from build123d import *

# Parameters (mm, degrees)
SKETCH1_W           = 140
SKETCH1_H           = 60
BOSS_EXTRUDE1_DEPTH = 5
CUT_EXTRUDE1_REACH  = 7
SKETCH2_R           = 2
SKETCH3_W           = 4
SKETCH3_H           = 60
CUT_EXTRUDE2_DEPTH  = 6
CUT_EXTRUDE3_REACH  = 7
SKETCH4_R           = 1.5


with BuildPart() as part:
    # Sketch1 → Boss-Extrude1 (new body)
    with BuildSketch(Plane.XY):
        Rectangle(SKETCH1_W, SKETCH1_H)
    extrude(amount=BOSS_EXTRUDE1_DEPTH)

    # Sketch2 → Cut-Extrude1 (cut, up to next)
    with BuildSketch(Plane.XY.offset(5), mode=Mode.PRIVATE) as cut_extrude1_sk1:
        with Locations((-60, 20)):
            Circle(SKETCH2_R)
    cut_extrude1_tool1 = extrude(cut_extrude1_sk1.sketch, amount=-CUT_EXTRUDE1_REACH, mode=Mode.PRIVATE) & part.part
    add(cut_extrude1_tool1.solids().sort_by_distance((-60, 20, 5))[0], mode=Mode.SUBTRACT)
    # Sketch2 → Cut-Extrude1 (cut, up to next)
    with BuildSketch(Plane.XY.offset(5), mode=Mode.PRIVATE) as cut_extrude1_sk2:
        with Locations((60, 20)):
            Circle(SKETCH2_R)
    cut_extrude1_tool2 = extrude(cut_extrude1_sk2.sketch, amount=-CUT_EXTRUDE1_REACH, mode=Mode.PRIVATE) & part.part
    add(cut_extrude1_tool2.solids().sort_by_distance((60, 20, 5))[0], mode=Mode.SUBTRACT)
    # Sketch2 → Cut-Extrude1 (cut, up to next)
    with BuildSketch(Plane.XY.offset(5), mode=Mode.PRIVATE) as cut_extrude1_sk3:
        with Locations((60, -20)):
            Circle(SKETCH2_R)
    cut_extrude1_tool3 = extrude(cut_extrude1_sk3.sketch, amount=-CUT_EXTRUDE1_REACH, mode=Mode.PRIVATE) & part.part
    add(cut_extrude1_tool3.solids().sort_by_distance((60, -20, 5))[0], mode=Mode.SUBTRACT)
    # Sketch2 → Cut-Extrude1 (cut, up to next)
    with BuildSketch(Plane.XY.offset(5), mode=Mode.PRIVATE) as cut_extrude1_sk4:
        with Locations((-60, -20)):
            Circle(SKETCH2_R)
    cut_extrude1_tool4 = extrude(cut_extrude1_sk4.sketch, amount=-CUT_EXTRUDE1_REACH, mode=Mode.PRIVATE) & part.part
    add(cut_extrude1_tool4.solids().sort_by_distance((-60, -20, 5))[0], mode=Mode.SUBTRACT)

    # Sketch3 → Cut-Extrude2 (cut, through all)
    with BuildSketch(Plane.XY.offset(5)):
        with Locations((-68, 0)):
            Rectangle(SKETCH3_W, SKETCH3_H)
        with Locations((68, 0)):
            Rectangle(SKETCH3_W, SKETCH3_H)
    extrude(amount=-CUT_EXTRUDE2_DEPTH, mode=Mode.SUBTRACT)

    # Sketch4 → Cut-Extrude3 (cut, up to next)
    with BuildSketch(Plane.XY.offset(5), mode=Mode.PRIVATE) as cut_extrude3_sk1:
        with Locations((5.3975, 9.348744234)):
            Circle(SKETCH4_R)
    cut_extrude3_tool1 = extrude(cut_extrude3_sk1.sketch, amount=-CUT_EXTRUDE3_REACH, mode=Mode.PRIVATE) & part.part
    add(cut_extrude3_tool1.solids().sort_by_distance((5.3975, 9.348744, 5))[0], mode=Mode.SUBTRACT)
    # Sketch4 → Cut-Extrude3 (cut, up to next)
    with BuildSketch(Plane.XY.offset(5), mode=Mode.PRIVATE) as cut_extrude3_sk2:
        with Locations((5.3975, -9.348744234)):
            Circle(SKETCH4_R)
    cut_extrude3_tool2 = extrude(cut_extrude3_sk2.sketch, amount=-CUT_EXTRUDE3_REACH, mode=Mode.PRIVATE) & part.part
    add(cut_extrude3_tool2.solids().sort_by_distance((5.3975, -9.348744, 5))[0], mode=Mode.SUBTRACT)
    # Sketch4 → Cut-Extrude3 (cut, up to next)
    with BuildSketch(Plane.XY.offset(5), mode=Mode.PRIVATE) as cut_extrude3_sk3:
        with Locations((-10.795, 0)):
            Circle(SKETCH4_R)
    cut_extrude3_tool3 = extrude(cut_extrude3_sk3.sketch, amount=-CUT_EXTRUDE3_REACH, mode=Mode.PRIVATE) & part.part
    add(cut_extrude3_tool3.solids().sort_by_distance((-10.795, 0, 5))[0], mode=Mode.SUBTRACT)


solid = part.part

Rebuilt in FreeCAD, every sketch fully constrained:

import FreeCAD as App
import Part
import Sketcher

V = App.Vector

doc = App.newDocument("Part")
body = doc.addObject("PartDesign::Body", "Body")

# Sketch on XY plane
sketch1 = doc.addObject("Sketcher::SketchObject", "Sketch")
body.addObject(sketch1)
sketch1.AttachmentSupport = (doc.XY_Plane, [""])
sketch1.MapMode = "FlatFace"
sketch1.addGeometry([
    Part.LineSegment(V(-70, 30, 0), V(-70, -30, 0)),
    Part.LineSegment(V(-70, -30, 0), V(70, -30, 0)),
    Part.LineSegment(V(70, -30, 0), V(70, 30, 0)),
    Part.LineSegment(V(70, 30, 0), V(-70, 30, 0)),
], False)
sketch1.addConstraint([
    Sketcher.Constraint("Coincident", 0, 2, 1, 1),
    Sketcher.Constraint("Coincident", 1, 2, 2, 1),
    Sketcher.Constraint("Coincident", 2, 2, 3, 1),
    Sketcher.Constraint("Coincident", 3, 2, 0, 1),
    Sketcher.Constraint("Vertical", 0),
    Sketcher.Constraint("Horizontal", 1),
    Sketcher.Constraint("Vertical", 2),
    Sketcher.Constraint("Horizontal", 3),
    Sketcher.Constraint("Symmetric", 0, 2, 2, 2, -1, 1),
    Sketcher.Constraint("DistanceX", 1, 1, 1, 2, 140.0),
    Sketcher.Constraint("DistanceY", 0, 2, 0, 1, 60.0),
])
pad1 = doc.addObject("PartDesign::Pad", "Pad")
body.addObject(pad1)
pad1.Profile = sketch1
pad1.Length = 5

# Sketch on XY plane
sketch2 = doc.addObject("Sketcher::SketchObject", "Sketch001")
body.addObject(sketch2)
sketch2.AttachmentSupport = (doc.XY_Plane, [""])
sketch2.MapMode = "FlatFace"
sketch2.AttachmentOffset = App.Placement(V(0, 0, 5), App.Rotation())
sketch2.addGeometry(Part.Circle(V(-60, 20, 0), V(0, 0, 1), 2), False)
sketch2.addConstraint([
    Sketcher.Constraint("Diameter", 0, 4.0),
    Sketcher.Constraint("DistanceX", 0, 3, -1, 1, 60.0),
    Sketcher.Constraint("DistanceY", -1, 1, 0, 3, 20.0),
])
pocket1 = doc.addObject("PartDesign::Pocket", "Pocket")
body.addObject(pocket1)
pocket1.Profile = sketch2
pocket1.Type = "UpToFirst"

# Sketch on XY plane
sketch3 = doc.addObject("Sketcher::SketchObject", "Sketch002")
body.addObject(sketch3)
sketch3.AttachmentSupport = (doc.XY_Plane, [""])
sketch3.MapMode = "FlatFace"
sketch3.AttachmentOffset = App.Placement(V(0, 0, 5), App.Rotation())
sketch3.addGeometry(Part.Circle(V(60, 20, 0), V(0, 0, 1), 2), False)
sketch3.addConstraint([
    Sketcher.Constraint("Diameter", 0, 4.0),
    Sketcher.Constraint("DistanceX", -1, 1, 0, 3, 60.0),
    Sketcher.Constraint("DistanceY", -1, 1, 0, 3, 20.0),
])
pocket2 = doc.addObject("PartDesign::Pocket", "Pocket001")
body.addObject(pocket2)
pocket2.Profile = sketch3
pocket2.Type = "UpToFirst"

# Sketch on XY plane
sketch4 = doc.addObject("Sketcher::SketchObject", "Sketch003")
body.addObject(sketch4)
sketch4.AttachmentSupport = (doc.XY_Plane, [""])
sketch4.MapMode = "FlatFace"
sketch4.AttachmentOffset = App.Placement(V(0, 0, 5), App.Rotation())
sketch4.addGeometry(Part.Circle(V(60, -20, 0), V(0, 0, 1), 2), False)
sketch4.addConstraint([
    Sketcher.Constraint("Diameter", 0, 4.0),
    Sketcher.Constraint("DistanceX", -1, 1, 0, 3, 60.0),
    Sketcher.Constraint("DistanceY", 0, 3, -1, 1, 20.0),
])
pocket3 = doc.addObject("PartDesign::Pocket", "Pocket002")
body.addObject(pocket3)
pocket3.Profile = sketch4
pocket3.Type = "UpToFirst"

# Sketch on XY plane
sketch5 = doc.addObject("Sketcher::SketchObject", "Sketch004")
body.addObject(sketch5)
sketch5.AttachmentSupport = (doc.XY_Plane, [""])
sketch5.MapMode = "FlatFace"
sketch5.AttachmentOffset = App.Placement(V(0, 0, 5), App.Rotation())
sketch5.addGeometry(Part.Circle(V(-60, -20, 0), V(0, 0, 1), 2), False)
sketch5.addConstraint([
    Sketcher.Constraint("Diameter", 0, 4.0),
    Sketcher.Constraint("DistanceX", 0, 3, -1, 1, 60.0),
    Sketcher.Constraint("DistanceY", 0, 3, -1, 1, 20.0),
])
pocket4 = doc.addObject("PartDesign::Pocket", "Pocket003")
body.addObject(pocket4)
pocket4.Profile = sketch5
pocket4.Type = "UpToFirst"

# Sketch on XY plane
sketch6 = doc.addObject("Sketcher::SketchObject", "Sketch005")
body.addObject(sketch6)
sketch6.AttachmentSupport = (doc.XY_Plane, [""])
sketch6.MapMode = "FlatFace"
sketch6.AttachmentOffset = App.Placement(V(0, 0, 5), App.Rotation())
sketch6.addGeometry([
    Part.LineSegment(V(-70, 30, 0), V(-70, -30, 0)),  # 0
    Part.LineSegment(V(-70, -30, 0), V(-66, -30, 0)),  # 1
    Part.LineSegment(V(-66, -30, 0), V(-66, 30, 0)),  # 2
    Part.LineSegment(V(-66, 30, 0), V(-70, 30, 0)),  # 3
    Part.LineSegment(V(66, 30, 0), V(66, -30, 0)),  # 4
    Part.LineSegment(V(66, -30, 0), V(70, -30, 0)),  # 5
    Part.LineSegment(V(70, -30, 0), V(70, 30, 0)),  # 6
    Part.LineSegment(V(70, 30, 0), V(66, 30, 0)),  # 7
], False)
sketch6.addConstraint([
    Sketcher.Constraint("Coincident", 0, 2, 1, 1),
    Sketcher.Constraint("Coincident", 1, 2, 2, 1),
    Sketcher.Constraint("Coincident", 2, 2, 3, 1),
    Sketcher.Constraint("Coincident", 3, 2, 0, 1),
    Sketcher.Constraint("Coincident", 4, 2, 5, 1),
    Sketcher.Constraint("Coincident", 5, 2, 6, 1),
    Sketcher.Constraint("Coincident", 6, 2, 7, 1),
    Sketcher.Constraint("Coincident", 7, 2, 4, 1),
    Sketcher.Constraint("Vertical", 0),
    Sketcher.Constraint("Horizontal", 1),
    Sketcher.Constraint("Vertical", 2),
    Sketcher.Constraint("Horizontal", 3),
    Sketcher.Constraint("Vertical", 4),
    Sketcher.Constraint("Horizontal", 5),
    Sketcher.Constraint("Vertical", 6),
    Sketcher.Constraint("Horizontal", 7),
    Sketcher.Constraint("Symmetric", 2, 2, 4, 2, -1, 1),
    Sketcher.Constraint("Symmetric", 0, 2, 6, 2, -1, 1),
    Sketcher.Constraint("Horizontal", 1, 2, 4, 2),
    Sketcher.Constraint("DistanceX", 1, 1, 1, 2, 4.0),
    Sketcher.Constraint("DistanceY", 0, 2, 0, 1, 60.0),
    Sketcher.Constraint("DistanceX", 0, 2, -1, 1, 70.0),
])
pocket5 = doc.addObject("PartDesign::Pocket", "Pocket004")
body.addObject(pocket5)
pocket5.Profile = sketch6
pocket5.Type = "ThroughAll"

# Sketch on XY plane
sketch7 = doc.addObject("Sketcher::SketchObject", "Sketch006")
body.addObject(sketch7)
sketch7.AttachmentSupport = (doc.XY_Plane, [""])
sketch7.MapMode = "FlatFace"
sketch7.AttachmentOffset = App.Placement(V(0, 0, 5), App.Rotation())
sketch7.addGeometry(Part.Circle(V(5.4, 9.3, 0), V(0, 0, 1), 1.5), False)
sketch7.addConstraint([
    Sketcher.Constraint("Diameter", 0, 3.0),
    Sketcher.Constraint("DistanceX", -1, 1, 0, 3, 5.3975),
    Sketcher.Constraint("DistanceY", -1, 1, 0, 3, 9.348744),
])
pocket6 = doc.addObject("PartDesign::Pocket", "Pocket005")
body.addObject(pocket6)
pocket6.Profile = sketch7
pocket6.Type = "UpToFirst"

# Sketch on XY plane
sketch8 = doc.addObject("Sketcher::SketchObject", "Sketch007")
body.addObject(sketch8)
sketch8.AttachmentSupport = (doc.XY_Plane, [""])
sketch8.MapMode = "FlatFace"
sketch8.AttachmentOffset = App.Placement(V(0, 0, 5), App.Rotation())
sketch8.addGeometry(Part.Circle(V(5.4, -9.3, 0), V(0, 0, 1), 1.5), False)
sketch8.addConstraint([
    Sketcher.Constraint("Diameter", 0, 3.0),
    Sketcher.Constraint("DistanceX", -1, 1, 0, 3, 5.3975),
    Sketcher.Constraint("DistanceY", 0, 3, -1, 1, 9.348744),
])
pocket7 = doc.addObject("PartDesign::Pocket", "Pocket006")
body.addObject(pocket7)
pocket7.Profile = sketch8
pocket7.Type = "UpToFirst"

# Sketch on XY plane
sketch9 = doc.addObject("Sketcher::SketchObject", "Sketch008")
body.addObject(sketch9)
sketch9.AttachmentSupport = (doc.XY_Plane, [""])
sketch9.MapMode = "FlatFace"
sketch9.AttachmentOffset = App.Placement(V(0, 0, 5), App.Rotation())
sketch9.addGeometry(Part.Circle(V(-10.8, 0, 0), V(0, 0, 1), 1.5), False)
sketch9.addConstraint([
    Sketcher.Constraint("PointOnObject", 0, 3, -1),
    Sketcher.Constraint("Diameter", 0, 3.0),
    Sketcher.Constraint("DistanceX", 0, 3, -1, 1, 10.795),
])
pocket8 = doc.addObject("PartDesign::Pocket", "Pocket007")
body.addObject(pocket8)
pocket8.Profile = sketch9
pocket8.Type = "UpToFirst"

doc.recompute()
